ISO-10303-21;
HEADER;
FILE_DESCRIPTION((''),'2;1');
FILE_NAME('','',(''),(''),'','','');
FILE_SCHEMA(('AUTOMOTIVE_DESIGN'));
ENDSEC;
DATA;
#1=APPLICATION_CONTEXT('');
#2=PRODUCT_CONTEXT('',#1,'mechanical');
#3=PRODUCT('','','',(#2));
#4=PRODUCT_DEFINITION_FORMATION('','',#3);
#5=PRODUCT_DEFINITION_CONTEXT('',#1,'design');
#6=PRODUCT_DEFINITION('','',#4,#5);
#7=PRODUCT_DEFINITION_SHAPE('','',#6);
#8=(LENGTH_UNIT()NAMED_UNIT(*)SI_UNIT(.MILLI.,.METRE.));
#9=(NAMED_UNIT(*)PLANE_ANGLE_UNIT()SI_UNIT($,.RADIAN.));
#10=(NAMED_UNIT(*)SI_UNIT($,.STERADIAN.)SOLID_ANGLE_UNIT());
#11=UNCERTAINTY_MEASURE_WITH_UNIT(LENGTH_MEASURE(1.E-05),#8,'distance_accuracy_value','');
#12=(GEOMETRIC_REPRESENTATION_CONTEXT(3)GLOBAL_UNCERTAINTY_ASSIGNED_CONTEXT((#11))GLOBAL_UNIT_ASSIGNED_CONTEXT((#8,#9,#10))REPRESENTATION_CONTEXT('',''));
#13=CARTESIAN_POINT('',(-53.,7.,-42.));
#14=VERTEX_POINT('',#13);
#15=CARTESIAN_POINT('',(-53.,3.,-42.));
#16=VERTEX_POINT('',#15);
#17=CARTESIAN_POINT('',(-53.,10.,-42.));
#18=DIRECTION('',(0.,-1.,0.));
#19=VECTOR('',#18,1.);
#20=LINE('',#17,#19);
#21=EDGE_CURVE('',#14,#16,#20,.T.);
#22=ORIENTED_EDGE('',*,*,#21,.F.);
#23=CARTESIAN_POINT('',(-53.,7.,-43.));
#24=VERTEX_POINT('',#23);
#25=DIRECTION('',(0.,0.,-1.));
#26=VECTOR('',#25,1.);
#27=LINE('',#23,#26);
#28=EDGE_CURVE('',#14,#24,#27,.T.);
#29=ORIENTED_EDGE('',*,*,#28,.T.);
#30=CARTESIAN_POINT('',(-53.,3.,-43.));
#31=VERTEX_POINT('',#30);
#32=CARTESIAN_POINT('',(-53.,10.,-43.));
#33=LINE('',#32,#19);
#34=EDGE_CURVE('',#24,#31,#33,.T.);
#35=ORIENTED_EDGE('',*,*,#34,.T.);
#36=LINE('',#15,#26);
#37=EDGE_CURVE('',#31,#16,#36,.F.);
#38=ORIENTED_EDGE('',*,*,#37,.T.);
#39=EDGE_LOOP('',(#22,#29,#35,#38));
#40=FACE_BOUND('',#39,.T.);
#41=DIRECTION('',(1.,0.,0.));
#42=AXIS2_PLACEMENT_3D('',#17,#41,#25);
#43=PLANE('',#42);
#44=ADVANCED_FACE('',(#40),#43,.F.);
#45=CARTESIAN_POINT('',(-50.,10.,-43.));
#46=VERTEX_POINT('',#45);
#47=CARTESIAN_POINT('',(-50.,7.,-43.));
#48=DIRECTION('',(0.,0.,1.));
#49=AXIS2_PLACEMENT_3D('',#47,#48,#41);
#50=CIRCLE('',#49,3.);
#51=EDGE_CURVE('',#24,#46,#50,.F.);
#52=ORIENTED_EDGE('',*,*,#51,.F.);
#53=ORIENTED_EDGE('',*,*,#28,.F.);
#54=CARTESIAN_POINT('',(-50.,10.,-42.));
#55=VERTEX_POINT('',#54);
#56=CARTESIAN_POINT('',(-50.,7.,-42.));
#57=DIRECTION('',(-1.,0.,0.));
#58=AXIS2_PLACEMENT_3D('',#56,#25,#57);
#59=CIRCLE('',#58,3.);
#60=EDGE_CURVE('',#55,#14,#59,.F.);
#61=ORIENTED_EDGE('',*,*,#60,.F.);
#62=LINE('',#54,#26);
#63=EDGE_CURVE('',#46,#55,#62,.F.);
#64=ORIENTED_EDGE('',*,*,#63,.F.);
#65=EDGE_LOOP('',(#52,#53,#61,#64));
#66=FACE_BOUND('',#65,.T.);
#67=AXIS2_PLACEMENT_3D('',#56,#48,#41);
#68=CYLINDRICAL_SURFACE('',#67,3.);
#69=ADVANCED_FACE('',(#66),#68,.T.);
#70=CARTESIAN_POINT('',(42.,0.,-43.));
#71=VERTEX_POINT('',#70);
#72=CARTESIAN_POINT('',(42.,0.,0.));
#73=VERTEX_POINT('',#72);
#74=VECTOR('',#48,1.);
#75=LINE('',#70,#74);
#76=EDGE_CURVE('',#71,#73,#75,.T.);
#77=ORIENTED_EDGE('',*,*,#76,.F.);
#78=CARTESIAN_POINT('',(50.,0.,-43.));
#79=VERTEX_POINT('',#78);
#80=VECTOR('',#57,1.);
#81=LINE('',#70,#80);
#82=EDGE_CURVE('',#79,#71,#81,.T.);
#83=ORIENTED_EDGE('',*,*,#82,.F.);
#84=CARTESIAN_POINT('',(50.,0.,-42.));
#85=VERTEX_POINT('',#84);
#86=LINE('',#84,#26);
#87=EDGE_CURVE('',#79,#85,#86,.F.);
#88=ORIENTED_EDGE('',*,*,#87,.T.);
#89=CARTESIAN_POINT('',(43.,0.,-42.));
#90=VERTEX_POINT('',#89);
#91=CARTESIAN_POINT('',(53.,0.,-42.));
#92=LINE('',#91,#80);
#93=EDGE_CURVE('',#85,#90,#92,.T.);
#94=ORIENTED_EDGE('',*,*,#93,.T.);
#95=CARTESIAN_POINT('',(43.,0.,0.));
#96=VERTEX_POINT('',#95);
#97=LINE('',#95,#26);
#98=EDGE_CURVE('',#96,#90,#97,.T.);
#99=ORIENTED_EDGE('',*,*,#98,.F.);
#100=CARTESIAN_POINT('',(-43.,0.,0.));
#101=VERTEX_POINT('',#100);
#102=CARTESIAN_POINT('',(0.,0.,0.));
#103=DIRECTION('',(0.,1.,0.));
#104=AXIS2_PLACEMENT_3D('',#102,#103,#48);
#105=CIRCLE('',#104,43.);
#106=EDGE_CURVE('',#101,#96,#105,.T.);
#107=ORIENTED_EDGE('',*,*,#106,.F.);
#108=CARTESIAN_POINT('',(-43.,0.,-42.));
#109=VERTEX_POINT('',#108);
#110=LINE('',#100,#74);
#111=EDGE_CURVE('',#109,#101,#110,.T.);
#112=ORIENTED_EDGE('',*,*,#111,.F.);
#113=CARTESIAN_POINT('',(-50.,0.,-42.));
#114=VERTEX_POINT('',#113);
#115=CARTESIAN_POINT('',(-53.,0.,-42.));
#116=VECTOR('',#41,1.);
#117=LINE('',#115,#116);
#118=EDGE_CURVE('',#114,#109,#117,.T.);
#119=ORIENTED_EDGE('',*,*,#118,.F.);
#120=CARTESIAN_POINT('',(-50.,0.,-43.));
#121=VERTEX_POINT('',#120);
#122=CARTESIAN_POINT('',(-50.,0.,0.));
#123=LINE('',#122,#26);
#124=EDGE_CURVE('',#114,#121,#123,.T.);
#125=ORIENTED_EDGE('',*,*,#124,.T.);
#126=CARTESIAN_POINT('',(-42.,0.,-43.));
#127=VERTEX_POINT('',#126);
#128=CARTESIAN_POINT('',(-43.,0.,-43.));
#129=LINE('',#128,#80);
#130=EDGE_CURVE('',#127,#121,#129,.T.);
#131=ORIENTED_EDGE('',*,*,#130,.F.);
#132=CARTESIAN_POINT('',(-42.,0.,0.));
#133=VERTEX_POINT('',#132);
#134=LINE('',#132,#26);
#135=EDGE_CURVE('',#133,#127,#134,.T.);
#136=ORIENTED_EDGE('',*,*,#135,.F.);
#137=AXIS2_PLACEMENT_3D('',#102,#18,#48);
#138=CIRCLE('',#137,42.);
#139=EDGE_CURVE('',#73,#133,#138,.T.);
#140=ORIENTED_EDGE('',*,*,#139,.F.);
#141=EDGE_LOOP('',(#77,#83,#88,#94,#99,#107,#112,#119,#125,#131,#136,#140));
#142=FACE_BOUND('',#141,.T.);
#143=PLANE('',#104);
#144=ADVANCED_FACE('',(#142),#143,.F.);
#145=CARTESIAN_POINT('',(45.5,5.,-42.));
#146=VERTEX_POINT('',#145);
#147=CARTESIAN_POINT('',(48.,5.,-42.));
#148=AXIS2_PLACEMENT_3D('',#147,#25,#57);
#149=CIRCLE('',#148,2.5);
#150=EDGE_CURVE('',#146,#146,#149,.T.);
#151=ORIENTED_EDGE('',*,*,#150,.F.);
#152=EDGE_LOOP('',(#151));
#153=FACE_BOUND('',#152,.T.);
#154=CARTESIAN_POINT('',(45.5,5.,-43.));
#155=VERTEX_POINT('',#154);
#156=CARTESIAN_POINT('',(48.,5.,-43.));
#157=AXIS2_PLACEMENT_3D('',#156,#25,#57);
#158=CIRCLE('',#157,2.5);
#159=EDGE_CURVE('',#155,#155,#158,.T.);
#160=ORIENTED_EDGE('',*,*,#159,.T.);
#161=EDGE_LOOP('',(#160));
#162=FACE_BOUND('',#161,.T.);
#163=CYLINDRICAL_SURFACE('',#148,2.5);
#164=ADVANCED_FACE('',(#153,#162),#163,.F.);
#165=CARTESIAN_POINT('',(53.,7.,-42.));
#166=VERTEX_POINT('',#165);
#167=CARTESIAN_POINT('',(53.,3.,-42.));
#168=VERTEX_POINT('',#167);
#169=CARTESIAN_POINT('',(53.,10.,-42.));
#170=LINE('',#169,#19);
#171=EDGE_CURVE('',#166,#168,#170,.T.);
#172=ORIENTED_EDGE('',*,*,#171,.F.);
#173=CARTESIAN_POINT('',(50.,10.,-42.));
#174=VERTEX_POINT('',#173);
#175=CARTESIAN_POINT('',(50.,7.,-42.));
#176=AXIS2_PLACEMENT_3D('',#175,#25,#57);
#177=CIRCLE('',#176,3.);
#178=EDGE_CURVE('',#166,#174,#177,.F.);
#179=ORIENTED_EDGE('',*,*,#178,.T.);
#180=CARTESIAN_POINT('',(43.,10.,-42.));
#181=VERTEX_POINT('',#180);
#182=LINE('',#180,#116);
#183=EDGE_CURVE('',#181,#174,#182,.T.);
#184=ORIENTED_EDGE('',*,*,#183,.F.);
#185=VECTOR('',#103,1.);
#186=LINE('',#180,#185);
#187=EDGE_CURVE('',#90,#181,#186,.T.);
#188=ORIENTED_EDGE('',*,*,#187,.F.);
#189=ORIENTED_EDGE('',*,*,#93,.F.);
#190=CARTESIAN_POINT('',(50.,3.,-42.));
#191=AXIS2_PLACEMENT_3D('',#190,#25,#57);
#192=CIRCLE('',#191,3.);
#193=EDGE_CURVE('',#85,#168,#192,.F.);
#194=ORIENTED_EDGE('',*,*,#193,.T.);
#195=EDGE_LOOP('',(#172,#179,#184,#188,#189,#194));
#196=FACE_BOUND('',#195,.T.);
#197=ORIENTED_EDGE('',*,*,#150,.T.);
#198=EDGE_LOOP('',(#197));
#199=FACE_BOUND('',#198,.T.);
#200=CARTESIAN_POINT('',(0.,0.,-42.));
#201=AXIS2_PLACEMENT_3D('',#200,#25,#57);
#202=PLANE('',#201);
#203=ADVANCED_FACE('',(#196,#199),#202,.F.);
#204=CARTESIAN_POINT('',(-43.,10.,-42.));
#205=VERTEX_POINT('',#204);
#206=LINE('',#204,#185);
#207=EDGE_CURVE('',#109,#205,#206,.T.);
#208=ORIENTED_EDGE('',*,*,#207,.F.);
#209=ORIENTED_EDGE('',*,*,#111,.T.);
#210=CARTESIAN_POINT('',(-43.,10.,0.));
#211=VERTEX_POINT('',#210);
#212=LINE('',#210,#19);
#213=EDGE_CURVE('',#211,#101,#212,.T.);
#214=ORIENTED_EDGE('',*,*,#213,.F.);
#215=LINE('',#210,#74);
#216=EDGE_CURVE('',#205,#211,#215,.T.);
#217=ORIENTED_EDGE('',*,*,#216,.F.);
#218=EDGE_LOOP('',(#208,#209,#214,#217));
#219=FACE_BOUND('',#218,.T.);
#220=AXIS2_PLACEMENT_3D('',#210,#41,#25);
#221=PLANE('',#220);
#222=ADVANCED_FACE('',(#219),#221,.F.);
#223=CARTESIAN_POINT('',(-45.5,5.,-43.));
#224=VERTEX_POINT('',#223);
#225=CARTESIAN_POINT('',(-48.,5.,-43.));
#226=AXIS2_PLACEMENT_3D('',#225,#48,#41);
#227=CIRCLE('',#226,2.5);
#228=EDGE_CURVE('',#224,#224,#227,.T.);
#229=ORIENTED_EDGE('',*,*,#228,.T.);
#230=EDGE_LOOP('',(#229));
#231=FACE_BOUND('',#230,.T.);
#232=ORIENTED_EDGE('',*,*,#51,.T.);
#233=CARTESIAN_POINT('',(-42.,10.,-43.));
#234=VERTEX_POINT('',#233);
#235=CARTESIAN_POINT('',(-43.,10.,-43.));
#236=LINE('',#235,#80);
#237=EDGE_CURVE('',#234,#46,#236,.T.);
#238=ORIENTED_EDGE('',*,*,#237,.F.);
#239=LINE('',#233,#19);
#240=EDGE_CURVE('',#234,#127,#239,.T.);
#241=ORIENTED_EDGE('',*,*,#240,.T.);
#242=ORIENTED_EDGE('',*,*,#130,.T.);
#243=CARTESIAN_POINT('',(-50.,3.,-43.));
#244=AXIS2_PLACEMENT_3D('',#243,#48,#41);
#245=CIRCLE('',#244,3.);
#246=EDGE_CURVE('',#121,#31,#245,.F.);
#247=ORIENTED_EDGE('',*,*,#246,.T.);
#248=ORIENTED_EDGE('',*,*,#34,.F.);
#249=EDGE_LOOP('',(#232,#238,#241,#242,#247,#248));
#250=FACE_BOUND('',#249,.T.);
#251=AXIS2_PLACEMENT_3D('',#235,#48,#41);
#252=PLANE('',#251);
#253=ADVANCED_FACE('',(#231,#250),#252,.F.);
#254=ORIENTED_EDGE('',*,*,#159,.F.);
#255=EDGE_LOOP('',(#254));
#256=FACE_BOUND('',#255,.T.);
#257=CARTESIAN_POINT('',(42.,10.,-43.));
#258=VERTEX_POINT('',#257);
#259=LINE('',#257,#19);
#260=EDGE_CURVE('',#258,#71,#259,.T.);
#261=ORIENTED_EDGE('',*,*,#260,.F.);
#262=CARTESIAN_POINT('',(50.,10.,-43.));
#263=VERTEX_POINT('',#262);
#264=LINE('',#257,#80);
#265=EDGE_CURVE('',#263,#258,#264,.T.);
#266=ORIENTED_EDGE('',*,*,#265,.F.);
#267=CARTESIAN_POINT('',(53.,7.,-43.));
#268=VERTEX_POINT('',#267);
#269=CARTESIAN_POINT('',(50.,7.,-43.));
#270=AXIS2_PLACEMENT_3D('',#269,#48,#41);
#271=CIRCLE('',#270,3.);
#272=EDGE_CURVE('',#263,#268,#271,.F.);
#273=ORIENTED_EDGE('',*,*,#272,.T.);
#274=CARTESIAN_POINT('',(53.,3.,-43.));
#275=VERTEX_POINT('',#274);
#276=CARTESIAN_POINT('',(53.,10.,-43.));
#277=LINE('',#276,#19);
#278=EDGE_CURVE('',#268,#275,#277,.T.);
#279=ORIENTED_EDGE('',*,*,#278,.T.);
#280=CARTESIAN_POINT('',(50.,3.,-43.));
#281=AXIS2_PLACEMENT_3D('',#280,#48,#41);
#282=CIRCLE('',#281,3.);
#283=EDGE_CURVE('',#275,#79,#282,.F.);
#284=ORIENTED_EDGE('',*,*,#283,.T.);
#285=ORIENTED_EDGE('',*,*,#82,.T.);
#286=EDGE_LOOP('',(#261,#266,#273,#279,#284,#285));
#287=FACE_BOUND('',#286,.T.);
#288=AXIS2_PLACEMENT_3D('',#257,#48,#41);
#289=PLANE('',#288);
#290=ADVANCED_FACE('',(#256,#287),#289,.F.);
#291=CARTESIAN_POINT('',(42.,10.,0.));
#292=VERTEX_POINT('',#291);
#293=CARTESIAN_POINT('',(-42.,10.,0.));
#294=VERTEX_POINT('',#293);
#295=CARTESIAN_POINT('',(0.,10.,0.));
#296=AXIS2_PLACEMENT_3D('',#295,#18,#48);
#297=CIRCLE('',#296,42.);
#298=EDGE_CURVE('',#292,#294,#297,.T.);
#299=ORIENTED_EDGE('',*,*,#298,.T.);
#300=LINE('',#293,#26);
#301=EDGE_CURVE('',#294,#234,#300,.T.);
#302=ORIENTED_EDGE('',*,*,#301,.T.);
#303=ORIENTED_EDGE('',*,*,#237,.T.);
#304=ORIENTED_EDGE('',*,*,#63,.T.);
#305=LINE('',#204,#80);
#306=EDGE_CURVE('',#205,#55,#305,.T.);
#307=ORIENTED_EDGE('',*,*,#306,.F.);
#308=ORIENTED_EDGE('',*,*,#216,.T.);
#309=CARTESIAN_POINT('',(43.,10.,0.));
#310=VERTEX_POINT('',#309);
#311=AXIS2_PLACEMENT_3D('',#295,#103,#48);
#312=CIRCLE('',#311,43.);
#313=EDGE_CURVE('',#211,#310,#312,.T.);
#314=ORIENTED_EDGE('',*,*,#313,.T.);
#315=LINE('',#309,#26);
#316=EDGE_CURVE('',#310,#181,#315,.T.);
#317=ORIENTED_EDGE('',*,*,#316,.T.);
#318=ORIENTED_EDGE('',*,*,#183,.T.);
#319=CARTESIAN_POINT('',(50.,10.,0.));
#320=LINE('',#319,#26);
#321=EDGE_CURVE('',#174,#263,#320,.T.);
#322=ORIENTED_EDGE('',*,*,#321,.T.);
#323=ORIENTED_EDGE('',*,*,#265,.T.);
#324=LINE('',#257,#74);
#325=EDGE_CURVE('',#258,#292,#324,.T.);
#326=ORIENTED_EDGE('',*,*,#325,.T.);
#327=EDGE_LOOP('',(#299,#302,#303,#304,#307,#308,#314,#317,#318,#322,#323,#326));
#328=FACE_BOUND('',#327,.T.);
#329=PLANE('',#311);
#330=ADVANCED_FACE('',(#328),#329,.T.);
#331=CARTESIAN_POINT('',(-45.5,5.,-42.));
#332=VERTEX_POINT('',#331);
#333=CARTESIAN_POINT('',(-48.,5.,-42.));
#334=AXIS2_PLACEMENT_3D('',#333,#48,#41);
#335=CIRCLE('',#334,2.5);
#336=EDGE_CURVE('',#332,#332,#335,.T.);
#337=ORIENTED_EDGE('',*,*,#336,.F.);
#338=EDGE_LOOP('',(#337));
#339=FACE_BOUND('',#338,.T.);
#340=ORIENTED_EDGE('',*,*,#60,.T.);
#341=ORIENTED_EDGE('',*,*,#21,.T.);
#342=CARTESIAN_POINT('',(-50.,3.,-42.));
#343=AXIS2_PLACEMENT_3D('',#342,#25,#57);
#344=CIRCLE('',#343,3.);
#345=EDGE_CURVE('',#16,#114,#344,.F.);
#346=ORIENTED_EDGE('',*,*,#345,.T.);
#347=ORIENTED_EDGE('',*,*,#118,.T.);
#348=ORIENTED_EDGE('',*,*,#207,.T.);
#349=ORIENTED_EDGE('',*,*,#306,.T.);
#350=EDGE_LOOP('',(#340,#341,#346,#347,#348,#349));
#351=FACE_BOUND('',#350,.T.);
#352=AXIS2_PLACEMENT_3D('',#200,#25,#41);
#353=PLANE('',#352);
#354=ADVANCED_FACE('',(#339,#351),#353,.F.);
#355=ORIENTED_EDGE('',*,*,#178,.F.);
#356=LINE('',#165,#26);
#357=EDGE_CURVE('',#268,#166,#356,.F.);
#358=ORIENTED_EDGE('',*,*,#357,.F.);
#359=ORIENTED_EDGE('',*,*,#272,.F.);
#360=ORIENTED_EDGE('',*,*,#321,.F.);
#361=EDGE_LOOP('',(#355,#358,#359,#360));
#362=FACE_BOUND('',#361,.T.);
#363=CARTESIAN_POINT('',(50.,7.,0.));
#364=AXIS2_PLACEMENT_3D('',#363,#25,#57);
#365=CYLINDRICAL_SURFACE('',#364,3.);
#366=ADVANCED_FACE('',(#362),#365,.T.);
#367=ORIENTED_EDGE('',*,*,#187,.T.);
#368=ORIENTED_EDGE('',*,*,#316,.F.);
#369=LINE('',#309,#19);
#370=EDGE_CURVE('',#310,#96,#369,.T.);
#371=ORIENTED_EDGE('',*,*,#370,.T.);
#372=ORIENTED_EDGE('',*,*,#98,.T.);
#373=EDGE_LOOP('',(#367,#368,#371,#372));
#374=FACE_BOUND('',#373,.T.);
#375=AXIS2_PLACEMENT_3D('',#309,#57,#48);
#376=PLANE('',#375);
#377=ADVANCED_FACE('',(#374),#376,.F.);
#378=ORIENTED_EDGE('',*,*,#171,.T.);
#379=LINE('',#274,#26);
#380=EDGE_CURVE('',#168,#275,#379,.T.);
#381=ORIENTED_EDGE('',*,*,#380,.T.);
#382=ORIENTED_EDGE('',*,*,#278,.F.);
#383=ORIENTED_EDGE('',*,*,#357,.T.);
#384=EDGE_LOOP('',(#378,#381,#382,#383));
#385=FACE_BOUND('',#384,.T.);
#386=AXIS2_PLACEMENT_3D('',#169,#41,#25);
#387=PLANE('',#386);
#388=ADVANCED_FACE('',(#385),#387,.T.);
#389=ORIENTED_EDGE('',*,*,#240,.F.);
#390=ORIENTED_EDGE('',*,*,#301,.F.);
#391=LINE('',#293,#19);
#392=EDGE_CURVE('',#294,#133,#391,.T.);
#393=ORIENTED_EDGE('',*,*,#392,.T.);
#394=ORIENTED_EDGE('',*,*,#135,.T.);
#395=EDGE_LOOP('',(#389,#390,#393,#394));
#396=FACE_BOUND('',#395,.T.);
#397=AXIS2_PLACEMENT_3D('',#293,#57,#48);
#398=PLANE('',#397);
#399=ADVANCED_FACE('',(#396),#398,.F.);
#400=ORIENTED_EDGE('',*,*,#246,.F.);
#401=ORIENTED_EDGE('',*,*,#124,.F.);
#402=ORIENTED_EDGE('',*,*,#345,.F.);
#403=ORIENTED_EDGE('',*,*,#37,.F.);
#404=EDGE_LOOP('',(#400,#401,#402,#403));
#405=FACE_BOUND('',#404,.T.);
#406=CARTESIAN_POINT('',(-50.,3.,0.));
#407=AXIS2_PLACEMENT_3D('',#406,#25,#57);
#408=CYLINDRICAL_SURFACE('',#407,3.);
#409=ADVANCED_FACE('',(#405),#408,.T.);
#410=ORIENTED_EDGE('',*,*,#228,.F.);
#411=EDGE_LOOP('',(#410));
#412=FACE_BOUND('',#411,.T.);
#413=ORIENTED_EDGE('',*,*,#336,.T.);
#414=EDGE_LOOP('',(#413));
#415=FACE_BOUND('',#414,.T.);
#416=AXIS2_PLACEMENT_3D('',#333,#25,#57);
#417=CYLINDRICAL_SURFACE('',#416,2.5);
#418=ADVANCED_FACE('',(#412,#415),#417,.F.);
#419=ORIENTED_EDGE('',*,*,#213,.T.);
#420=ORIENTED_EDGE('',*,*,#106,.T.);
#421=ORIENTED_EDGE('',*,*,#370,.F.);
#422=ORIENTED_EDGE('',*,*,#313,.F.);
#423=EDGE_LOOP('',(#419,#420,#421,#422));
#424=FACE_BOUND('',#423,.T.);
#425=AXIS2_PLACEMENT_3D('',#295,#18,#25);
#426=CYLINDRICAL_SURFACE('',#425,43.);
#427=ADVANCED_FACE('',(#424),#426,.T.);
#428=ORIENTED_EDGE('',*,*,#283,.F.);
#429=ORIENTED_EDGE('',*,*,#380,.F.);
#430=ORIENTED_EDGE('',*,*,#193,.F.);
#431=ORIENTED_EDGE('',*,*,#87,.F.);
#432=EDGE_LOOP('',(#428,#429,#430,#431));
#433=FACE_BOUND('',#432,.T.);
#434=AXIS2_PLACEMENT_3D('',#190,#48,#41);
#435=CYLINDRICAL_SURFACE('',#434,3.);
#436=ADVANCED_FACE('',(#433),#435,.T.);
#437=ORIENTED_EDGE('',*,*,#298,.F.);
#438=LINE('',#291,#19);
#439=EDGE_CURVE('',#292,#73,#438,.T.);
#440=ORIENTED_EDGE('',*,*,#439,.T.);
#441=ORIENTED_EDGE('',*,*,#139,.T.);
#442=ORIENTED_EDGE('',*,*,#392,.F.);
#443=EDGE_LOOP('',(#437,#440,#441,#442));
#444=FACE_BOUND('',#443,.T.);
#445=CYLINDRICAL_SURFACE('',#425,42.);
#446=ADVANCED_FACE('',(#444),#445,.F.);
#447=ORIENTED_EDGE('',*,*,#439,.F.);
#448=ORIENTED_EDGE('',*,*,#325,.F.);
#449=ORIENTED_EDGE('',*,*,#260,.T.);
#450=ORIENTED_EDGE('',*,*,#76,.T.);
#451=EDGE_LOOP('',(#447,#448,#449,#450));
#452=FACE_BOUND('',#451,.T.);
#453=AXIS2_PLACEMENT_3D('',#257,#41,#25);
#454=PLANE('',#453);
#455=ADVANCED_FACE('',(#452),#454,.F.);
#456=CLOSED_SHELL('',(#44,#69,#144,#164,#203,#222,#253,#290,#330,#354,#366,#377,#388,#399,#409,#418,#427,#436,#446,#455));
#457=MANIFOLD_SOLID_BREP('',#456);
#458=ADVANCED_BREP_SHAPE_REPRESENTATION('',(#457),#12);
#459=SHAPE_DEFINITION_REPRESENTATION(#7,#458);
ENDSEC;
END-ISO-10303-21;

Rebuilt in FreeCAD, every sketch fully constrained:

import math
import FreeCAD as App
import Part
import Sketcher
Q = App.Units.Quantity


def edges_at(feature, points):
    """Names of the edges that pass closest to the given points."""
    edges = feature.Shape.Edges
    near = lambda p: min(range(len(edges)), key=lambda i: edges[i].distToShape(Part.Vertex(*p))[0])
    return sorted({f"Edge{near(p) + 1}" for p in points})

doc = App.newDocument("Part")
body = doc.addObject("PartDesign::Body", "Body")

sketch1 = doc.addObject("Sketcher::SketchObject", "Sketch")
body.addObject(sketch1)
sketch1.AttachmentSupport = (doc.XZ_Plane, [""])
sketch1.MapMode = "FlatFace"
sketch1.addGeometry([
    Part.LineSegment(App.Vector(-42, -43, 0), App.Vector(-43, -43, 0)),
    Part.LineSegment(App.Vector(-43, -43, 0), App.Vector(-43, 0, 0)),
    Part.ArcOfCircle(Part.Circle(App.Vector(0, 0, 0), App.Vector(0, 0, 1), 43), math.radians(0), math.radians(180)),
    Part.LineSegment(App.Vector(43, 0, 0), App.Vector(43, -43, 0)),
    Part.LineSegment(App.Vector(43, -43, 0), App.Vector(42, -43, 0)),
    Part.LineSegment(App.Vector(42, -43, 0), App.Vector(42, 0, 0)),
    Part.ArcOfCircle(Part.Circle(App.Vector(0, 0, 0), App.Vector(0, 0, 1), 42), math.radians(0), math.radians(180)),
    Part.LineSegment(App.Vector(-42, 0, 0), App.Vector(-42, -43, 0)),
], False)
sketch1.addConstraint([
    Sketcher.Constraint("Coincident", 0, 2, 1, 1),
    Sketcher.Constraint("Tangent", 1, 2, 2, 2),
    Sketcher.Constraint("Tangent", 2, 1, 3, 1),
    Sketcher.Constraint("Coincident", 3, 2, 4, 1),
    Sketcher.Constraint("Coincident", 4, 2, 5, 1),
    Sketcher.Constraint("Tangent", 5, 2, 6, 1),
    Sketcher.Constraint("Tangent", 6, 2, 7, 1),
    Sketcher.Constraint("Coincident", 7, 2, 0, 1),
    Sketcher.Constraint("Horizontal", 0),
    Sketcher.Constraint("Vertical", 1),
    Sketcher.Constraint("Vertical", 3),
    Sketcher.Constraint("Horizontal", 4),
    Sketcher.Constraint("Vertical", 5),
    Sketcher.Constraint("Vertical", 7),
    Sketcher.Constraint("Coincident", 2, 3, -1, 1),
    Sketcher.Constraint("Coincident", 6, 3, -1, 1),
    Sketcher.Constraint("Horizontal", 0, 2, 3, 2),
    Sketcher.Constraint("Radius", 2, Q("43 mm")),
    Sketcher.Constraint("Radius", 6, Q("42 mm")),
    Sketcher.Constraint("DistanceY", 1, 1, 1, 2, Q("43 mm")),
])
pad1 = doc.addObject("PartDesign::Pad", "Pad")
body.addObject(pad1)
pad1.Profile = sketch1
pad1.Length = 10
pad1.Reversed = True

sketch2 = doc.addObject("Sketcher::SketchObject", "Sketch001")
body.addObject(sketch2)
sketch2.AttachmentSupport = (doc.XY_Plane, [""])
sketch2.MapMode = "FlatFace"
sketch2.AttachmentOffset = App.Placement(App.Vector(0, 0, -43), App.Rotation())
sketch2.addGeometry([
    Part.LineSegment(App.Vector(53, 10, 0), App.Vector(53, 0, 0)),
    Part.LineSegment(App.Vector(53, 0, 0), App.Vector(43, 0, 0)),
    Part.LineSegment(App.Vector(43, 0, 0), App.Vector(43, 10, 0)),
    Part.LineSegment(App.Vector(43, 10, 0), App.Vector(53, 10, 0)),
], False)
sketch2.addConstraint([
    Sketcher.Constraint("Coincident", 0, 2, 1, 1),
    Sketcher.Constraint("Coincident", 1, 2, 2, 1),
    Sketcher.Constraint("Coincident", 2, 2, 3, 1),
    Sketcher.Constraint("Coincident", 3, 2, 0, 1),
    Sketcher.Constraint("Vertical", 0),
    Sketcher.Constraint("Horizontal", 1),
    Sketcher.Constraint("Vertical", 2),
    Sketcher.Constraint("Horizontal", 3),
    Sketcher.Constraint("PointOnObject", 0, 2, -1),
    Sketcher.Constraint("Equal", 3, 0),
    Sketcher.Constraint("DistanceX", 1, 2, 1, 1, Q("10 mm")),
    Sketcher.Constraint("DistanceX", -1, 1, 0, 2, Q("53 mm")),
])
pad2 = doc.addObject("PartDesign::Pad", "Pad001")
body.addObject(pad2)
pad2.Profile = sketch2
pad2.Length = 1
doc.recompute()

fillet = doc.addObject("PartDesign::Fillet", "Fillet")
body.addObject(fillet)
fillet.Base = (pad2, edges_at(pad2, [(53, 10, -42.5)]))
fillet.Radius = 3
doc.recompute()

fillet2 = doc.addObject("PartDesign::Fillet", "Fillet001")
body.addObject(fillet2)
fillet2.Base = (fillet, edges_at(fillet, [(53, 0, -42.5)]))
fillet2.Radius = 3

sketch3 = doc.addObject("Sketcher::SketchObject", "Sketch002")
body.addObject(sketch3)
sketch3.AttachmentSupport = (doc.XY_Plane, [""])
sketch3.MapMode = "FlatFace"
sketch3.AttachmentOffset = App.Placement(App.Vector(0, 0, -43), App.Rotation())
sketch3.addGeometry(Part.Circle(App.Vector(48, 5, 0), App.Vector(0, 0, 1), 2.5), False)
sketch3.addConstraint([
    Sketcher.Constraint("Diameter", 0, Q("5 mm")),
    Sketcher.Constraint("DistanceX", -1, 1, 0, 3, Q("48 mm")),
    Sketcher.Constraint("DistanceY", -1, 1, 0, 3, Q("5 mm")),
])
pocket1 = doc.addObject("PartDesign::Pocket", "Pocket")
body.addObject(pocket1)
pocket1.Profile = sketch3
pocket1.Length = 1
pocket1.Reversed = True
doc.recompute()

mirrored = doc.addObject("PartDesign::Mirrored", "Mirrored")
body.addObject(mirrored)
mirrored.Originals = [pad2, pocket1]
mirrored.MirrorPlane = (doc.YZ_Plane, [""])
body.Tip = mirrored
doc.recompute()

fillet3 = doc.addObject("PartDesign::Fillet", "Fillet002")
body.addObject(fillet3)
fillet3.Base = (mirrored, edges_at(mirrored, [(-53, 10, -42.5)]))
fillet3.Radius = 3
doc.recompute()

fillet4 = doc.addObject("PartDesign::Fillet", "Fillet003")
body.addObject(fillet4)
fillet4.Base = (fillet3, edges_at(fillet3, [(-53, 0, -42.5)]))
fillet4.Radius = 3

doc.recompute()
